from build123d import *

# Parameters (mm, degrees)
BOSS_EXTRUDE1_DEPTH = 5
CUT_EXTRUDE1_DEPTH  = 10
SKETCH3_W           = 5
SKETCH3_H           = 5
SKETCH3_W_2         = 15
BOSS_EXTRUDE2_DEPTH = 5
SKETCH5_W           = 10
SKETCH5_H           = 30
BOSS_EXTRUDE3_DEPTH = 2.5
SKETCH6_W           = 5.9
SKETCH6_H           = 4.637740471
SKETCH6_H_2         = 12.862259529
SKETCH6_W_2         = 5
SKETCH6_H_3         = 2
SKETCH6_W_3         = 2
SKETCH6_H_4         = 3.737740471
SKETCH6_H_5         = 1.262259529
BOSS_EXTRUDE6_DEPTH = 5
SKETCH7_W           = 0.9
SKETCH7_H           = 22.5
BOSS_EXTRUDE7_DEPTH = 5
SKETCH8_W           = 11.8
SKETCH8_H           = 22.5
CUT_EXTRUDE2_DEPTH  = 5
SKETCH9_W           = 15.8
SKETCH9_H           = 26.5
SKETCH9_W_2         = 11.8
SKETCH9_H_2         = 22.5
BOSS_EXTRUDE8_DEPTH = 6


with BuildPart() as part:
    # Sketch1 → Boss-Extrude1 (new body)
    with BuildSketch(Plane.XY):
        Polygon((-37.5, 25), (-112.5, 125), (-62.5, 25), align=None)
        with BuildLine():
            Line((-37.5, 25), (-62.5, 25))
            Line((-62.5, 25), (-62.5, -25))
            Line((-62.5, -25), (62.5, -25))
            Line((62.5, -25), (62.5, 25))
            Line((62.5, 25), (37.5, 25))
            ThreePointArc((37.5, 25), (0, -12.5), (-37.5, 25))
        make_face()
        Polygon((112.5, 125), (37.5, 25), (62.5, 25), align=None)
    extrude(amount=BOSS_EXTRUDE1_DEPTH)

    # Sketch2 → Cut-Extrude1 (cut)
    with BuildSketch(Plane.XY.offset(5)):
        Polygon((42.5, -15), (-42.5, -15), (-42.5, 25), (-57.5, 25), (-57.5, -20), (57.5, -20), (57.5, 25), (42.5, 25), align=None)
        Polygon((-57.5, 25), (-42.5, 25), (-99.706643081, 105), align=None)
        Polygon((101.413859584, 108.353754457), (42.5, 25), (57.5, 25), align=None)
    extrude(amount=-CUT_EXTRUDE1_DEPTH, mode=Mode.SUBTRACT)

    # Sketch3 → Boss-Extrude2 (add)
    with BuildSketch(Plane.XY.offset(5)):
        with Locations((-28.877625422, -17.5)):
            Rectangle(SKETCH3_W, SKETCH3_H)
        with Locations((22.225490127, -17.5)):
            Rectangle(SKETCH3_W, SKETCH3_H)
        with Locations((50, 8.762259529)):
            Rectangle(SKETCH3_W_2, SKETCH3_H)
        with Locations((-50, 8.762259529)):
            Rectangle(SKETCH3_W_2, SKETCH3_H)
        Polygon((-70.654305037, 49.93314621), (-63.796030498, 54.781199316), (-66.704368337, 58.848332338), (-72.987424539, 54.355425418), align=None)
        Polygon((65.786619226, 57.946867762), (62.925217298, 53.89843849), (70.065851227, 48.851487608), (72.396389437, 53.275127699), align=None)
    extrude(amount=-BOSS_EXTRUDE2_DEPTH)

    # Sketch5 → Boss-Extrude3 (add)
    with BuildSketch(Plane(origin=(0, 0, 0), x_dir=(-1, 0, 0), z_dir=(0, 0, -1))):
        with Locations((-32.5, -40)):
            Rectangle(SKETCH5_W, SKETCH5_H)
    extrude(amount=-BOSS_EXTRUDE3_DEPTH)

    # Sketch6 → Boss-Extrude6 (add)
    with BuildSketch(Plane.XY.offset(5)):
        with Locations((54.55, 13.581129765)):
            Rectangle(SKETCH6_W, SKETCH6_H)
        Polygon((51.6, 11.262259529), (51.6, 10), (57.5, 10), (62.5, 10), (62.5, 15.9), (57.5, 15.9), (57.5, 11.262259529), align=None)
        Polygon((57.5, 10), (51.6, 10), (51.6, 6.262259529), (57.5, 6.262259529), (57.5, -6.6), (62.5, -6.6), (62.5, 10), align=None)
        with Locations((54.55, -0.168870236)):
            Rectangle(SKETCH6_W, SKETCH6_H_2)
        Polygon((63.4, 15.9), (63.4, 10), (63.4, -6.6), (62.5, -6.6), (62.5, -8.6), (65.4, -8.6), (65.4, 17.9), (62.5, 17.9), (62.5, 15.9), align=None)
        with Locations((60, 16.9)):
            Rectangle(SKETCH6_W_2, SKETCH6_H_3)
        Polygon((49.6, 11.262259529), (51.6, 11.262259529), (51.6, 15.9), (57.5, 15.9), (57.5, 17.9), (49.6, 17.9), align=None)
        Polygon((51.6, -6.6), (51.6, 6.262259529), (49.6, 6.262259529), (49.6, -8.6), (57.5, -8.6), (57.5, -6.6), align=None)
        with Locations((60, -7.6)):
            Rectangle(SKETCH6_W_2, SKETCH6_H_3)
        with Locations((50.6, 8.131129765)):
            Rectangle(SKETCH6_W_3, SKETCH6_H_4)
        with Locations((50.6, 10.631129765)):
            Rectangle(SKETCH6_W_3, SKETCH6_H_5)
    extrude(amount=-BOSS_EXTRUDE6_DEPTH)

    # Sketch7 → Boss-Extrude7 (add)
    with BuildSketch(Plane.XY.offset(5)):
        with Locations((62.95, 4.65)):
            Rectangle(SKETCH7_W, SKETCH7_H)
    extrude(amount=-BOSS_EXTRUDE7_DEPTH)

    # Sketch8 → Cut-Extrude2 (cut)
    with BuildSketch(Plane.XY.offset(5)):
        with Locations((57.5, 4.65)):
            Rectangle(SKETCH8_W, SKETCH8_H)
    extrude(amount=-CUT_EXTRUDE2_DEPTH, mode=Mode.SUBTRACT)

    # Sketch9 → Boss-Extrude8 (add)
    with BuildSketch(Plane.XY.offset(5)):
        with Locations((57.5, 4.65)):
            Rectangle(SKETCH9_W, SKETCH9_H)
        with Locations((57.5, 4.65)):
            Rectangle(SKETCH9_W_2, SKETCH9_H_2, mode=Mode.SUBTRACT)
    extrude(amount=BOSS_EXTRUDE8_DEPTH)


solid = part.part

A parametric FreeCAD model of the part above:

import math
import FreeCAD as App
import Part
import Sketcher

doc = App.newDocument("Part")
body = doc.addObject("PartDesign::Body", "Body")

sketch1 = body.newObject("Sketcher::SketchObject", "Sketch")
sketch1.AttachmentSupport = (doc.getObject("XY_Plane"), [""])
sketch1.MapMode = "FlatFace"
sketch1.addGeometry(Part.LineSegment(App.Vector(-37.5, 25, 0), App.Vector(-112.5, 125, 0)), False)
sketch1.addGeometry(Part.LineSegment(App.Vector(-112.5, 125, 0), App.Vector(-62.5, 25, 0)), False)
sketch1.addGeometry(Part.LineSegment(App.Vector(-62.5, 25, 0), App.Vector(-62.5, -25, 0)), False)
sketch1.addGeometry(Part.LineSegment(App.Vector(-62.5, -25, 0), App.Vector(62.5, -25, 0)), False)
sketch1.addGeometry(Part.LineSegment(App.Vector(62.5, -25, 0), App.Vector(62.5, 25, 0)), False)
sketch1.addGeometry(Part.LineSegment(App.Vector(62.5, 25, 0), App.Vector(112.5, 125, 0)), False)
sketch1.addGeometry(Part.LineSegment(App.Vector(112.5, 125, 0), App.Vector(37.5, 25, 0)), False)
sketch1.addGeometry(Part.ArcOfCircle(Part.Circle(App.Vector(0, 25, 0), App.Vector(0, 0, 1), 37.5), math.radians(180), math.radians(360)), False)
sketch1.addConstraint(Sketcher.Constraint("Coincident", 0, 2, 1, 1))
sketch1.addConstraint(Sketcher.Constraint("Coincident", 1, 2, 2, 1))
sketch1.addConstraint(Sketcher.Constraint("Coincident", 2, 2, 3, 1))
sketch1.addConstraint(Sketcher.Constraint("Coincident", 3, 2, 4, 1))
sketch1.addConstraint(Sketcher.Constraint("Coincident", 4, 2, 5, 1))
sketch1.addConstraint(Sketcher.Constraint("Coincident", 5, 2, 6, 1))
sketch1.addConstraint(Sketcher.Constraint("Coincident", 6, 2, 7, 2))
sketch1.addConstraint(Sketcher.Constraint("Coincident", 7, 1, 0, 1))
sketch1.addConstraint(Sketcher.Constraint("Vertical", 2))
sketch1.addConstraint(Sketcher.Constraint("Horizontal", 3))
sketch1.addConstraint(Sketcher.Constraint("Vertical", 4))
sketch1.addConstraint(Sketcher.Constraint("Symmetric", 1, 2, 3, 2, -1, 1))
sketch1.addConstraint(Sketcher.Constraint("Symmetric", 0, 2, 5, 2, -2))
sketch1.addConstraint(Sketcher.Constraint("Symmetric", 6, 2, 7, 1, -2))
sketch1.addConstraint(Sketcher.Constraint("Horizontal", 7, 3, 1, 2))
sketch1.addConstraint(Sketcher.Constraint("Horizontal", 1, 2, 4, 2))
sketch1.addConstraint(Sketcher.Constraint("Horizontal", 4, 2, 6, 2))
sketch1.addConstraint(Sketcher.Constraint("Radius", 7, 37.5))
sketch1.addConstraint(Sketcher.Constraint("DistanceX", 3, 1, 3, 2, 125.0))
sketch1.addConstraint(Sketcher.Constraint("DistanceY", 2, 2, 2, 1, 50.0))
sketch1.addConstraint(Sketcher.Constraint("Distance", 0, 125.0))
sketch1.addConstraint(Sketcher.Constraint("DistanceY", -1, 1, 0, 2, 125.0))
pad1 = body.newObject("PartDesign::Pad", "Pad")
pad1.Profile = sketch1
pad1.Length = 5

sketch2 = body.newObject("Sketcher::SketchObject", "Sketch001")
sketch2.AttachmentSupport = (doc.getObject("XY_Plane"), [""])
sketch2.MapMode = "FlatFace"
sketch2.AttachmentOffset = App.Placement(App.Vector(0, 0, 5), App.Rotation())
sketch2.addGeometry(Part.LineSegment(App.Vector(42.5, -15, 0), App.Vector(-42.5, -15, 0)), False)
sketch2.addGeometry(Part.LineSegment(App.Vector(-42.5, -15, 0), App.Vector(-42.5, 25, 0)), False)
sketch2.addGeometry(Part.LineSegment(App.Vector(-42.5, 25, 0), App.Vector(-99.706643, 105, 0)), False)
sketch2.addGeometry(Part.LineSegment(App.Vector(-99.706643, 105, 0), App.Vector(-57.5, 25, 0)), False)
sketch2.addGeometry(Part.LineSegment(App.Vector(-57.5, 25, 0), App.Vector(-57.5, -20, 0)), False)
sketch2.addGeometry(Part.LineSegment(App.Vector(-57.5, -20, 0), App.Vector(57.5, -20, 0)), False)
sketch2.addGeometry(Part.LineSegment(App.Vector(57.5, -20, 0), App.Vector(57.5, 25, 0)), False)
sketch2.addGeometry(Part.LineSegment(App.Vector(57.5, 25, 0), App.Vector(101.41386, 108.353754, 0)), False)
sketch2.addGeometry(Part.LineSegment(App.Vector(101.41386, 108.353754, 0), App.Vector(42.5, 25, 0)), False)
sketch2.addGeometry(Part.LineSegment(App.Vector(42.5, 25, 0), App.Vector(42.5, -15, 0)), False)
sketch2.addConstraint(Sketcher.Constraint("Coincident", 0, 2, 1, 1))
sketch2.addConstraint(Sketcher.Constraint("Coincident", 1, 2, 2, 1))
sketch2.addConstraint(Sketcher.Constraint("Coincident", 2, 2, 3, 1))
sketch2.addConstraint(Sketcher.Constraint("Coincident", 3, 2, 4, 1))
sketch2.addConstraint(Sketcher.Constraint("Coincident", 4, 2, 5, 1))
sketch2.addConstraint(Sketcher.Constraint("Coincident", 5, 2, 6, 1))
sketch2.addConstraint(Sketcher.Constraint("Coincident", 6, 2, 7, 1))
sketch2.addConstraint(Sketcher.Constraint("Coincident", 7, 2, 8, 1))
sketch2.addConstraint(Sketcher.Constraint("Coincident", 8, 2, 9, 1))
sketch2.addConstraint(Sketcher.Constraint("Coincident", 9, 2, 0, 1))
sketch2.addConstraint(Sketcher.Constraint("Horizontal", 0))
sketch2.addConstraint(Sketcher.Constraint("Vertical", 1))
sketch2.addConstraint(Sketcher.Constraint("Vertical", 4))
sketch2.addConstraint(Sketcher.Constraint("Horizontal", 5))
sketch2.addConstraint(Sketcher.Constraint("Vertical", 6))
sketch2.addConstraint(Sketcher.Constraint("Vertical", 9))
sketch2.addConstraint(Sketcher.Constraint("Symmetric", 3, 2, 6, 2, -2))
sketch2.addConstraint(Sketcher.Constraint("Symmetric", 1, 2, 8, 2, -2))
sketch2.addConstraint(Sketcher.Constraint("Horizontal", 1, 2, 3, 2))
sketch2.addConstraint(Sketcher.Constraint("DistanceX", 0, 2, 0, 1, 85.0))
sketch2.addConstraint(Sketcher.Constraint("DistanceX", 5, 1, 5, 2, 115.0))
sketch2.addConstraint(Sketcher.Constraint("DistanceY", 1, 1, 1, 2, 40.0))
sketch2.addConstraint(Sketcher.Constraint("DistanceY", 4, 2, 4, 1, 45.0))
sketch2.addConstraint(Sketcher.Constraint("DistanceY", 0, 2, -1, 1, 15.0))
sketch2.addConstraint(Sketcher.Constraint("DistanceY", -1, 1, 2, 2, 105.0))
sketch2.addConstraint(Sketcher.Constraint("Distance", 8, 102.07199))
sketch2.addConstraint(Sketcher.Constraint("DistanceX", -1, 1, 7, 2, 101.41386))
sketch2.addConstraint(Sketcher.Constraint("Distance", 2, 98.349377))
pocket1 = body.newObject("PartDesign::Pocket", "Pocket")
pocket1.Profile = sketch2
pocket1.Length = 10

sketch3 = body.newObject("Sketcher::SketchObject", "Sketch002")
sketch3.AttachmentSupport = (doc.getObject("XY_Plane"), [""])
sketch3.MapMode = "FlatFace"
sketch3.AttachmentOffset = App.Placement(App.Vector(0, 0, 5), App.Rotation())
sketch3.addGeometry(Part.LineSegment(App.Vector(-31.377625, -15, 0), App.Vector(-31.377625, -20, 0)), False)
sketch3.addGeometry(Part.LineSegment(App.Vector(-31.377625, -20, 0), App.Vector(-26.377625, -20, 0)), False)
sketch3.addGeometry(Part.LineSegment(App.Vector(-26.377625, -20, 0), App.Vector(-26.377625, -15, 0)), False)
sketch3.addGeometry(Part.LineSegment(App.Vector(-26.377625, -15, 0), App.Vector(-31.377625, -15, 0)), False)
sketch3.addGeometry(Part.LineSegment(App.Vector(19.72549, -15, 0), App.Vector(19.72549, -20, 0)), False)
sketch3.addGeometry(Part.LineSegment(App.Vector(19.72549, -20, 0), App.Vector(24.72549, -20, 0)), False)
sketch3.addGeometry(Part.LineSegment(App.Vector(24.72549, -20, 0), App.Vector(24.72549, -15, 0)), False)
sketch3.addGeometry(Part.LineSegment(App.Vector(24.72549, -15, 0), App.Vector(19.72549, -15, 0)), False)
sketch3.addGeometry(Part.LineSegment(App.Vector(42.5, 11.26226, 0), App.Vector(42.5, 6.26226, 0)), False)
sketch3.addGeometry(Part.LineSegment(App.Vector(42.5, 6.26226, 0), App.Vector(57.5, 6.26226, 0)), False)
sketch3.addGeometry(Part.LineSegment(App.Vector(57.5, 6.26226, 0), App.Vector(57.5, 11.26226, 0)), False)
sketch3.addGeometry(Part.LineSegment(App.Vector(57.5, 11.26226, 0), App.Vector(42.5, 11.26226, 0)), False)
sketch3.addGeometry(Part.LineSegment(App.Vector(-57.5, 11.26226, 0), App.Vector(-57.5, 6.26226, 0)), False)
sketch3.addGeometry(Part.LineSegment(App.Vector(-57.5, 6.26226, 0), App.Vector(-42.5, 6.26226, 0)), False)
sketch3.addGeometry(Part.LineSegment(App.Vector(-42.5, 6.26226, 0), App.Vector(-42.5, 11.26226, 0)), False)
sketch3.addGeometry(Part.LineSegment(App.Vector(-42.5, 11.26226, 0), App.Vector(-57.5, 11.26226, 0)), False)
sketch3.addGeometry(Part.LineSegment(App.Vector(-70.654305, 49.933146, 0), App.Vector(-63.79603, 54.781199, 0)), False)
sketch3.addGeometry(Part.LineSegment(App.Vector(-63.79603, 54.781199, 0), App.Vector(-66.704368, 58.848332, 0)), False)
sketch3.addGeometry(Part.LineSegment(App.Vector(-66.704368, 58.848332, 0), App.Vector(-72.987425, 54.355425, 0)), False)
sketch3.addGeometry(Part.LineSegment(App.Vector(-72.987425, 54.355425, 0), App.Vector(-70.654305, 49.933146, 0)), False)
sketch3.addGeometry(Part.LineSegment(App.Vector(65.786619, 57.946868, 0), App.Vector(62.925217, 53.898438, 0)), False)
sketch3.addGeometry(Part.LineSegment(App.Vector(62.925217, 53.898438, 0), App.Vector(70.065851, 48.851488, 0)), False)
sketch3.addGeometry(Part.LineSegment(App.Vector(70.065851, 48.851488, 0), App.Vector(72.396389, 53.275128, 0)), False)
sketch3.addGeometry(Part.LineSegment(App.Vector(72.396389, 53.275128, 0), App.Vector(65.786619, 57.946868, 0)), False)
sketch3.addConstraint(Sketcher.Constraint("Coincident", 0, 2, 1, 1))
sketch3.addConstraint(Sketcher.Constraint("Coincident", 1, 2, 2, 1))
sketch3.addConstraint(Sketcher.Constraint("Coincident", 2, 2, 3, 1))
sketch3.addConstraint(Sketcher.Constraint("Coincident", 3, 2, 0, 1))
sketch3.addConstraint(Sketcher.Constraint("Coincident", 4, 2, 5, 1))
sketch3.addConstraint(Sketcher.Constraint("Coincident", 5, 2, 6, 1))
sketch3.addConstraint(Sketcher.Constraint("Coincident", 6, 2, 7, 1))
sketch3.addConstraint(Sketcher.Constraint("Coincident", 7, 2, 4, 1))
sketch3.addConstraint(Sketcher.Constraint("Coincident", 8, 2, 9, 1))
sketch3.addConstraint(Sketcher.Constraint("Coincident", 9, 2, 10, 1))
sketch3.addConstraint(Sketcher.Constraint("Coincident", 10, 2, 11, 1))
sketch3.addConstraint(Sketcher.Constraint("Coincident", 11, 2, 8, 1))
sketch3.addConstraint(Sketcher.Constraint("Coincident", 12, 2, 13, 1))
sketch3.addConstraint(Sketcher.Constraint("Coincident", 13, 2, 14, 1))
sketch3.addConstraint(Sketcher.Constraint("Coincident", 14, 2, 15, 1))
sketch3.addConstraint(Sketcher.Constraint("Coincident", 15, 2, 12, 1))
sketch3.addConstraint(Sketcher.Constraint("Coincident", 16, 2, 17, 1))
sketch3.addConstraint(Sketcher.Constraint("Coincident", 17, 2, 18, 1))
sketch3.addConstraint(Sketcher.Constraint("Coincident", 18, 2, 19, 1))
sketch3.addConstraint(Sketcher.Constraint("Coincident", 19, 2, 16, 1))
sketch3.addConstraint(Sketcher.Constraint("Coincident", 20, 2, 21, 1))
sketch3.addConstraint(Sketcher.Constraint("Coincident", 21, 2, 22, 1))
sketch3.addConstraint(Sketcher.Constraint("Coincident", 22, 2, 23, 1))
sketch3.addConstraint(Sketcher.Constraint("Coincident", 23, 2, 20, 1))
sketch3.addConstraint(Sketcher.Constraint("Vertical", 0))
sketch3.addConstraint(Sketcher.Constraint("Horizontal", 1))
sketch3.addConstraint(Sketcher.Constraint("Vertical", 2))
sketch3.addConstraint(Sketcher.Constraint("Horizontal", 3))
sketch3.addConstraint(Sketcher.Constraint("Vertical", 4))
sketch3.addConstraint(Sketcher.Constraint("Horizontal", 5))
sketch3.addConstraint(Sketcher.Constraint("Vertical", 6))
sketch3.addConstraint(Sketcher.Constraint("Horizontal", 7))
sketch3.addConstraint(Sketcher.Constraint("Vertical", 8))
sketch3.addConstraint(Sketcher.Constraint("Horizontal", 9))
sketch3.addConstraint(Sketcher.Constraint("Vertical", 10))
sketch3.addConstraint(Sketcher.Constraint("Horizontal", 11))
sketch3.addConstraint(Sketcher.Constraint("Vertical", 12))
sketch3.addConstraint(Sketcher.Constraint("Horizontal", 13))
sketch3.addConstraint(Sketcher.Constraint("Vertical", 14))
sketch3.addConstraint(Sketcher.Constraint("Horizontal", 15))
sketch3.addConstraint(Sketcher.Constraint("Symmetric", 9, 2, 12, 2, -2))
sketch3.addConstraint(Sketcher.Constraint("Symmetric", 11, 2, 14, 2, -2))
sketch3.addConstraint(Sketcher.Constraint("Perpendicular", 17, 18))
sketch3.addConstraint(Sketcher.Constraint("Perpendicular", 20, 21))
sketch3.addConstraint(Sketcher.Constraint("Parallel", 21, 23))
sketch3.addConstraint(Sketcher.Constraint("Horizontal", 1, 2, 4, 2))
sketch3.addConstraint(Sketcher.Constraint("Horizontal", 3, 2, 6, 2))
sketch3.addConstraint(Sketcher.Constraint("Equal", 3, 5))
sketch3.addConstraint(Sketcher.Constraint("Equal", 7, 0))
sketch3.addConstraint(Sketcher.Constraint("Equal", 6, 8))
sketch3.addConstraint(Sketcher.Constraint("Equal", 17, 19))
sketch3.addConstraint(Sketcher.Constraint("Equal", 19, 22))
sketch3.addConstraint(Sketcher.Constraint("DistanceX", 1, 1, 1, 2, 5.0))
sketch3.addConstraint(Sketcher.Constraint("DistanceX", 9, 1, 9, 2, 15.0))
sketch3.addConstraint(Sketcher.Constraint("Distance", 17, 5.0))
sketch3.addConstraint(Sketcher.Constraint("DistanceY", 0, 2, -1, 1, 20.0))
sketch3.addConstraint(Sketcher.Constraint("DistanceX", -1, 1, 8, 2, 42.5))
sketch3.addConstraint(Sketcher.Constraint("DistanceY", -1, 1, 16, 2, 54.781199))
sketch3.addConstraint(Sketcher.Constraint("DistanceX", 20, 2, 23, 2, 2.861402))
sketch3.addConstraint(Sketcher.Constraint("Distance", 20, 4.95756))
sketch3.addConstraint(Sketcher.Constraint("Distance", 21, 8.744162))
sketch3.addConstraint(Sketcher.Constraint("DistanceX", -1, 1, 4, 2, 19.72549))
sketch3.addConstraint(Sketcher.Constraint("DistanceY", -1, 1, 8, 2, 6.26226))
sketch3.addConstraint(Sketcher.Constraint("DistanceX", 16, 2, -1, 1, 63.79603))
sketch3.addConstraint(Sketcher.Constraint("DistanceX", 17, 2, -1, 1, 66.704368))
sketch3.addConstraint(Sketcher.Constraint("DistanceY", -1, 1, 20, 2, 53.898438))
sketch3.addConstraint(Sketcher.Constraint("DistanceX", -1, 1, 21, 2, 70.065851))
sketch3.addConstraint(Sketcher.Constraint("DistanceX", 18, 2, 19, 2, 2.33312))
sketch3.addConstraint(Sketcher.Constraint("Distance", 16, 8.398783))
sketch3.addConstraint(Sketcher.Constraint("DistanceX", 0, 2, -1, 1, 31.377625))
pad2 = body.newObject("PartDesign::Pad", "Pad001")
pad2.Profile = sketch3
pad2.Length = 5
pad2.Reversed = True

sketch4 = body.newObject("Sketcher::SketchObject", "Sketch003")
sketch4.AttachmentSupport = (doc.getObject("XY_Plane"), [""])
sketch4.MapMode = "FlatFace"
sketch4.addGeometry(Part.LineSegment(App.Vector(37.5, -25, 0), App.Vector(37.5, -55, 0)), False)
sketch4.addGeometry(Part.LineSegment(App.Vector(37.5, -55, 0), App.Vector(27.5, -55, 0)), False)
sketch4.addGeometry(Part.LineSegment(App.Vector(27.5, -55, 0), App.Vector(27.5, -25, 0)), False)
sketch4.addGeometry(Part.LineSegment(App.Vector(27.5, -25, 0), App.Vector(37.5, -25, 0)), False)
sketch4.addConstraint(Sketcher.Constraint("Coincident", 0, 2, 1, 1))
sketch4.addConstraint(Sketcher.Constraint("Coincident", 1, 2, 2, 1))
sketch4.addConstraint(Sketcher.Constraint("Coincident", 2, 2, 3, 1))
sketch4.addConstraint(Sketcher.Constraint("Coincident", 3, 2, 0, 1))
sketch4.addConstraint(Sketcher.Constraint("Vertical", 0))
sketch4.addConstraint(Sketcher.Constraint("Horizontal", 1))
sketch4.addConstraint(Sketcher.Constraint("Vertical", 2))
sketch4.addConstraint(Sketcher.Constraint("Horizontal", 3))
sketch4.addConstraint(Sketcher.Constraint("DistanceX", 1, 2, 1, 1, 10.0))
sketch4.addConstraint(Sketcher.Constraint("DistanceY", 0, 2, 0, 1, 30.0))
sketch4.addConstraint(Sketcher.Constraint("DistanceY", 0, 2, -1, 1, 55.0))
sketch4.addConstraint(Sketcher.Constraint("DistanceX", -1, 1, 0, 2, 37.5))
pad3 = body.newObject("PartDesign::Pad", "Pad002")
pad3.Profile = sketch4
pad3.Length = 2.5

sketch5 = body.newObject("Sketcher::SketchObject", "Sketch004")
sketch5.AttachmentSupport = (doc.getObject("XY_Plane"), [""])
sketch5.MapMode = "FlatFace"
sketch5.AttachmentOffset = App.Placement(App.Vector(0, 0, 5), App.Rotation())
sketch5.addGeometry(Part.LineSegment(App.Vector(49.6, -8.6, 0), App.Vector(65.4, -8.6, 0)), False)
sketch5.addGeometry(Part.LineSegment(App.Vector(65.4, -8.6, 0), App.Vector(65.4, 17.9, 0)), False)
sketch5.addGeometry(Part.LineSegment(App.Vector(65.4, 17.9, 0), App.Vector(49.6, 17.9, 0)), False)
sketch5.addGeometry(Part.LineSegment(App.Vector(49.6, 17.9, 0), App.Vector(49.6, -8.6, 0)), False)
sketch5.addGeometry(Part.LineSegment(App.Vector(63.4, -6.6, 0), App.Vector(62.5, -6.6, 0)), False)
sketch5.addGeometry(Part.LineSegment(App.Vector(62.5, -6.6, 0), App.Vector(62.5, 15.9, 0)), False)
sketch5.addGeometry(Part.LineSegment(App.Vector(62.5, 15.9, 0), App.Vector(63.4, 15.9, 0)), False)
sketch5.addGeometry(Part.LineSegment(App.Vector(63.4, 15.9, 0), App.Vector(63.4, -6.6, 0)), False)
sketch5.addConstraint(Sketcher.Constraint("Coincident", 0, 2, 1, 1))
sketch5.addConstraint(Sketcher.Constraint("Coincident", 1, 2, 2, 1))
sketch5.addConstraint(Sketcher.Constraint("Coincident", 2, 2, 3, 1))
sketch5.addConstraint(Sketcher.Constraint("Coincident", 3, 2, 0, 1))
sketch5.addConstraint(Sketcher.Constraint("Coincident", 4, 2, 5, 1))
sketch5.addConstraint(Sketcher.Constraint("Coincident", 5, 2, 6, 1))
sketch5.addConstraint(Sketcher.Constraint("Coincident", 6, 2, 7, 1))
sketch5.addConstraint(Sketcher.Constraint("Coincident", 7, 2, 4, 1))
sketch5.addConstraint(Sketcher.Constraint("Horizontal", 0))
sketch5.addConstraint(Sketcher.Constraint("Vertical", 1))
sketch5.addConstraint(Sketcher.Constraint("Horizontal", 2))
sketch5.addConstraint(Sketcher.Constraint("Vertical", 3))
sketch5.addConstraint(Sketcher.Constraint("Horizontal", 4))
sketch5.addConstraint(Sketcher.Constraint("Vertical", 5))
sketch5.addConstraint(Sketcher.Constraint("Horizontal", 6))
sketch5.addConstraint(Sketcher.Constraint("Vertical", 7))
sketch5.addConstraint(Sketcher.Constraint("DistanceX", 0, 1, 0, 2, 15.8))
sketch5.addConstraint(Sketcher.Constraint("DistanceX", 4, 2, 4, 1, 0.9))
sketch5.addConstraint(Sketcher.Constraint("DistanceY", 1, 1, 1, 2, 26.5))
sketch5.addConstraint(Sketcher.Constraint("DistanceY", 5, 1, 5, 2, 22.5))
sketch5.addConstraint(Sketcher.Constraint("DistanceY", 0, 2, 4, 2, 2.0))
sketch5.addConstraint(Sketcher.Constraint("DistanceX", 6, 2, 1, 2, 2.0))
sketch5.addConstraint(Sketcher.Constraint("DistanceX", -1, 1, 0, 2, 65.4))
sketch5.addConstraint(Sketcher.Constraint("DistanceY", 0, 2, -1, 1, 8.6))
pad4 = body.newObject("PartDesign::Pad", "Pad003")
pad4.Profile = sketch5
pad4.Length = 5
pad4.Reversed = True

sketch6 = body.newObject("Sketcher::SketchObject", "Sketch005")
sketch6.AttachmentSupport = (doc.getObject("XY_Plane"), [""])
sketch6.MapMode = "FlatFace"
sketch6.AttachmentOffset = App.Placement(App.Vector(0, 0, 5), App.Rotation())
sketch6.addGeometry(Part.LineSegment(App.Vector(62.5, 15.9, 0), App.Vector(62.5, -6.6, 0)), False)
sketch6.addGeometry(Part.LineSegment(App.Vector(62.5, -6.6, 0), App.Vector(63.4, -6.6, 0)), False)
sketch6.addGeometry(Part.LineSegment(App.Vector(63.4, -6.6, 0), App.Vector(63.4, 15.9, 0)), False)
sketch6.addGeometry(Part.LineSegment(App.Vector(63.4, 15.9, 0), App.Vector(62.5, 15.9, 0)), False)
sketch6.addConstraint(Sketcher.Constraint("Coincident", 0, 2, 1, 1))
sketch6.addConstraint(Sketcher.Constraint("Coincident", 1, 2, 2, 1))
sketch6.addConstraint(Sketcher.Constraint("Coincident", 2, 2, 3, 1))
sketch6.addConstraint(Sketcher.Constraint("Coincident", 3, 2, 0, 1))
sketch6.addConstraint(Sketcher.Constraint("Vertical", 0))
sketch6.addConstraint(Sketcher.Constraint("Horizontal", 1))
sketch6.addConstraint(Sketcher.Constraint("Vertical", 2))
sketch6.addConstraint(Sketcher.Constraint("Horizontal", 3))
sketch6.addConstraint(Sketcher.Constraint("DistanceX", 1, 1, 1, 2, 0.9))
sketch6.addConstraint(Sketcher.Constraint("DistanceY", 0, 2, 0, 1, 22.5))
sketch6.addConstraint(Sketcher.Constraint("DistanceX", -1, 1, 0, 2, 62.5))
sketch6.addConstraint(Sketcher.Constraint("DistanceY", 0, 2, -1, 1, 6.6))
pad5 = body.newObject("PartDesign::Pad", "Pad004")
pad5.Profile = sketch6
pad5.Length = 5
pad5.Reversed = True

sketch7 = body.newObject("Sketcher::SketchObject", "Sketch006")
sketch7.AttachmentSupport = (doc.getObject("XY_Plane"), [""])
sketch7.MapMode = "FlatFace"
sketch7.AttachmentOffset = App.Placement(App.Vector(0, 0, 5), App.Rotation())
sketch7.addGeometry(Part.LineSegment(App.Vector(51.6, 15.9, 0), App.Vector(51.6, -6.6, 0)), False)
sketch7.addGeometry(Part.LineSegment(App.Vector(51.6, -6.6, 0), App.Vector(63.4, -6.6, 0)), False)
sketch7.addGeometry(Part.LineSegment(App.Vector(63.4, -6.6, 0), App.Vector(63.4, 15.9, 0)), False)
sketch7.addGeometry(Part.LineSegment(App.Vector(63.4, 15.9, 0), App.Vector(51.6, 15.9, 0)), False)
sketch7.addConstraint(Sketcher.Constraint("Coincident", 0, 2, 1, 1))
sketch7.addConstraint(Sketcher.Constraint("Coincident", 1, 2, 2, 1))
sketch7.addConstraint(Sketcher.Constraint("Coincident", 2, 2, 3, 1))
sketch7.addConstraint(Sketcher.Constraint("Coincident", 3, 2, 0, 1))
sketch7.addConstraint(Sketcher.Constraint("Vertical", 0))
sketch7.addConstraint(Sketcher.Constraint("Horizontal", 1))
sketch7.addConstraint(Sketcher.Constraint("Vertical", 2))
sketch7.addConstraint(Sketcher.Constraint("Horizontal", 3))
sketch7.addConstraint(Sketcher.Constraint("DistanceX", 1, 1, 1, 2, 11.8))
sketch7.addConstraint(Sketcher.Constraint("DistanceY", 0, 2, 0, 1, 22.5))
sketch7.addConstraint(Sketcher.Constraint("DistanceX", -1, 1, 0, 2, 51.6))
sketch7.addConstraint(Sketcher.Constraint("DistanceY", 0, 2, -1, 1, 6.6))
pocket2 = body.newObject("PartDesign::Pocket", "Pocket001")
pocket2.Profile = sketch7
pocket2.Length = 5

sketch8 = body.newObject("Sketcher::SketchObject", "Sketch007")
sketch8.AttachmentSupport = (doc.getObject("XY_Plane"), [""])
sketch8.MapMode = "FlatFace"
sketch8.AttachmentOffset = App.Placement(App.Vector(0, 0, 5), App.Rotation())
sketch8.addGeometry(Part.LineSegment(App.Vector(49.6, 17.9, 0), App.Vector(49.6, -8.6, 0)), False)
sketch8.addGeometry(Part.LineSegment(App.Vector(49.6, -8.6, 0), App.Vector(65.4, -8.6, 0)), False)
sketch8.addGeometry(Part.LineSegment(App.Vector(65.4, -8.6, 0), App.Vector(65.4, 17.9, 0)), False)
sketch8.addGeometry(Part.LineSegment(App.Vector(65.4, 17.9, 0), App.Vector(49.6, 17.9, 0)), False)
sketch8.addGeometry(Part.LineSegment(App.Vector(63.4, -6.6, 0), App.Vector(51.6, -6.6, 0)), False)
sketch8.addGeometry(Part.LineSegment(App.Vector(51.6, -6.6, 0), App.Vector(51.6, 15.9, 0)), False)
sketch8.addGeometry(Part.LineSegment(App.Vector(51.6, 15.9, 0), App.Vector(63.4, 15.9, 0)), False)
sketch8.addGeometry(Part.LineSegment(App.Vector(63.4, 15.9, 0), App.Vector(63.4, -6.6, 0)), False)
sketch8.addConstraint(Sketcher.Constraint("Coincident", 0, 2, 1, 1))
sketch8.addConstraint(Sketcher.Constraint("Coincident", 1, 2, 2, 1))
sketch8.addConstraint(Sketcher.Constraint("Coincident", 2, 2, 3, 1))
sketch8.addConstraint(Sketcher.Constraint("Coincident", 3, 2, 0, 1))
sketch8.addConstraint(Sketcher.Constraint("Coincident", 4, 2, 5, 1))
sketch8.addConstraint(Sketcher.Constraint("Coincident", 5, 2, 6, 1))
sketch8.addConstraint(Sketcher.Constraint("Coincident", 6, 2, 7, 1))
sketch8.addConstraint(Sketcher.Constraint("Coincident", 7, 2, 4, 1))
sketch8.addConstraint(Sketcher.Constraint("Vertical", 0))
sketch8.addConstraint(Sketcher.Constraint("Horizontal", 1))
sketch8.addConstraint(Sketcher.Constraint("Vertical", 2))
sketch8.addConstraint(Sketcher.Constraint("Horizontal", 3))
sketch8.addConstraint(Sketcher.Constraint("Horizontal", 4))
sketch8.addConstraint(Sketcher.Constraint("Vertical", 5))
sketch8.addConstraint(Sketcher.Constraint("Horizontal", 6))
sketch8.addConstraint(Sketcher.Constraint("Vertical", 7))
sketch8.addConstraint(Sketcher.Constraint("DistanceX", 1, 1, 1, 2, 15.8))
sketch8.addConstraint(Sketcher.Constraint("DistanceX", 4, 2, 4, 1, 11.8))
sketch8.addConstraint(Sketcher.Constraint("DistanceY", 0, 2, 0, 1, 26.5))
sketch8.addConstraint(Sketcher.Constraint("DistanceY", 5, 1, 5, 2, 22.5))
sketch8.addConstraint(Sketcher.Constraint("DistanceX", 0, 2, 4, 2, 2.0))
sketch8.addConstraint(Sketcher.Constraint("DistanceY", 0, 2, 4, 2, 2.0))
sketch8.addConstraint(Sketcher.Constraint("DistanceX", -1, 1, 0, 2, 49.6))
sketch8.addConstraint(Sketcher.Constraint("DistanceY", 0, 2, -1, 1, 8.6))
pad6 = body.newObject("PartDesign::Pad", "Pad005")
pad6.Profile = sketch8
pad6.Length = 6

doc.recompute()
